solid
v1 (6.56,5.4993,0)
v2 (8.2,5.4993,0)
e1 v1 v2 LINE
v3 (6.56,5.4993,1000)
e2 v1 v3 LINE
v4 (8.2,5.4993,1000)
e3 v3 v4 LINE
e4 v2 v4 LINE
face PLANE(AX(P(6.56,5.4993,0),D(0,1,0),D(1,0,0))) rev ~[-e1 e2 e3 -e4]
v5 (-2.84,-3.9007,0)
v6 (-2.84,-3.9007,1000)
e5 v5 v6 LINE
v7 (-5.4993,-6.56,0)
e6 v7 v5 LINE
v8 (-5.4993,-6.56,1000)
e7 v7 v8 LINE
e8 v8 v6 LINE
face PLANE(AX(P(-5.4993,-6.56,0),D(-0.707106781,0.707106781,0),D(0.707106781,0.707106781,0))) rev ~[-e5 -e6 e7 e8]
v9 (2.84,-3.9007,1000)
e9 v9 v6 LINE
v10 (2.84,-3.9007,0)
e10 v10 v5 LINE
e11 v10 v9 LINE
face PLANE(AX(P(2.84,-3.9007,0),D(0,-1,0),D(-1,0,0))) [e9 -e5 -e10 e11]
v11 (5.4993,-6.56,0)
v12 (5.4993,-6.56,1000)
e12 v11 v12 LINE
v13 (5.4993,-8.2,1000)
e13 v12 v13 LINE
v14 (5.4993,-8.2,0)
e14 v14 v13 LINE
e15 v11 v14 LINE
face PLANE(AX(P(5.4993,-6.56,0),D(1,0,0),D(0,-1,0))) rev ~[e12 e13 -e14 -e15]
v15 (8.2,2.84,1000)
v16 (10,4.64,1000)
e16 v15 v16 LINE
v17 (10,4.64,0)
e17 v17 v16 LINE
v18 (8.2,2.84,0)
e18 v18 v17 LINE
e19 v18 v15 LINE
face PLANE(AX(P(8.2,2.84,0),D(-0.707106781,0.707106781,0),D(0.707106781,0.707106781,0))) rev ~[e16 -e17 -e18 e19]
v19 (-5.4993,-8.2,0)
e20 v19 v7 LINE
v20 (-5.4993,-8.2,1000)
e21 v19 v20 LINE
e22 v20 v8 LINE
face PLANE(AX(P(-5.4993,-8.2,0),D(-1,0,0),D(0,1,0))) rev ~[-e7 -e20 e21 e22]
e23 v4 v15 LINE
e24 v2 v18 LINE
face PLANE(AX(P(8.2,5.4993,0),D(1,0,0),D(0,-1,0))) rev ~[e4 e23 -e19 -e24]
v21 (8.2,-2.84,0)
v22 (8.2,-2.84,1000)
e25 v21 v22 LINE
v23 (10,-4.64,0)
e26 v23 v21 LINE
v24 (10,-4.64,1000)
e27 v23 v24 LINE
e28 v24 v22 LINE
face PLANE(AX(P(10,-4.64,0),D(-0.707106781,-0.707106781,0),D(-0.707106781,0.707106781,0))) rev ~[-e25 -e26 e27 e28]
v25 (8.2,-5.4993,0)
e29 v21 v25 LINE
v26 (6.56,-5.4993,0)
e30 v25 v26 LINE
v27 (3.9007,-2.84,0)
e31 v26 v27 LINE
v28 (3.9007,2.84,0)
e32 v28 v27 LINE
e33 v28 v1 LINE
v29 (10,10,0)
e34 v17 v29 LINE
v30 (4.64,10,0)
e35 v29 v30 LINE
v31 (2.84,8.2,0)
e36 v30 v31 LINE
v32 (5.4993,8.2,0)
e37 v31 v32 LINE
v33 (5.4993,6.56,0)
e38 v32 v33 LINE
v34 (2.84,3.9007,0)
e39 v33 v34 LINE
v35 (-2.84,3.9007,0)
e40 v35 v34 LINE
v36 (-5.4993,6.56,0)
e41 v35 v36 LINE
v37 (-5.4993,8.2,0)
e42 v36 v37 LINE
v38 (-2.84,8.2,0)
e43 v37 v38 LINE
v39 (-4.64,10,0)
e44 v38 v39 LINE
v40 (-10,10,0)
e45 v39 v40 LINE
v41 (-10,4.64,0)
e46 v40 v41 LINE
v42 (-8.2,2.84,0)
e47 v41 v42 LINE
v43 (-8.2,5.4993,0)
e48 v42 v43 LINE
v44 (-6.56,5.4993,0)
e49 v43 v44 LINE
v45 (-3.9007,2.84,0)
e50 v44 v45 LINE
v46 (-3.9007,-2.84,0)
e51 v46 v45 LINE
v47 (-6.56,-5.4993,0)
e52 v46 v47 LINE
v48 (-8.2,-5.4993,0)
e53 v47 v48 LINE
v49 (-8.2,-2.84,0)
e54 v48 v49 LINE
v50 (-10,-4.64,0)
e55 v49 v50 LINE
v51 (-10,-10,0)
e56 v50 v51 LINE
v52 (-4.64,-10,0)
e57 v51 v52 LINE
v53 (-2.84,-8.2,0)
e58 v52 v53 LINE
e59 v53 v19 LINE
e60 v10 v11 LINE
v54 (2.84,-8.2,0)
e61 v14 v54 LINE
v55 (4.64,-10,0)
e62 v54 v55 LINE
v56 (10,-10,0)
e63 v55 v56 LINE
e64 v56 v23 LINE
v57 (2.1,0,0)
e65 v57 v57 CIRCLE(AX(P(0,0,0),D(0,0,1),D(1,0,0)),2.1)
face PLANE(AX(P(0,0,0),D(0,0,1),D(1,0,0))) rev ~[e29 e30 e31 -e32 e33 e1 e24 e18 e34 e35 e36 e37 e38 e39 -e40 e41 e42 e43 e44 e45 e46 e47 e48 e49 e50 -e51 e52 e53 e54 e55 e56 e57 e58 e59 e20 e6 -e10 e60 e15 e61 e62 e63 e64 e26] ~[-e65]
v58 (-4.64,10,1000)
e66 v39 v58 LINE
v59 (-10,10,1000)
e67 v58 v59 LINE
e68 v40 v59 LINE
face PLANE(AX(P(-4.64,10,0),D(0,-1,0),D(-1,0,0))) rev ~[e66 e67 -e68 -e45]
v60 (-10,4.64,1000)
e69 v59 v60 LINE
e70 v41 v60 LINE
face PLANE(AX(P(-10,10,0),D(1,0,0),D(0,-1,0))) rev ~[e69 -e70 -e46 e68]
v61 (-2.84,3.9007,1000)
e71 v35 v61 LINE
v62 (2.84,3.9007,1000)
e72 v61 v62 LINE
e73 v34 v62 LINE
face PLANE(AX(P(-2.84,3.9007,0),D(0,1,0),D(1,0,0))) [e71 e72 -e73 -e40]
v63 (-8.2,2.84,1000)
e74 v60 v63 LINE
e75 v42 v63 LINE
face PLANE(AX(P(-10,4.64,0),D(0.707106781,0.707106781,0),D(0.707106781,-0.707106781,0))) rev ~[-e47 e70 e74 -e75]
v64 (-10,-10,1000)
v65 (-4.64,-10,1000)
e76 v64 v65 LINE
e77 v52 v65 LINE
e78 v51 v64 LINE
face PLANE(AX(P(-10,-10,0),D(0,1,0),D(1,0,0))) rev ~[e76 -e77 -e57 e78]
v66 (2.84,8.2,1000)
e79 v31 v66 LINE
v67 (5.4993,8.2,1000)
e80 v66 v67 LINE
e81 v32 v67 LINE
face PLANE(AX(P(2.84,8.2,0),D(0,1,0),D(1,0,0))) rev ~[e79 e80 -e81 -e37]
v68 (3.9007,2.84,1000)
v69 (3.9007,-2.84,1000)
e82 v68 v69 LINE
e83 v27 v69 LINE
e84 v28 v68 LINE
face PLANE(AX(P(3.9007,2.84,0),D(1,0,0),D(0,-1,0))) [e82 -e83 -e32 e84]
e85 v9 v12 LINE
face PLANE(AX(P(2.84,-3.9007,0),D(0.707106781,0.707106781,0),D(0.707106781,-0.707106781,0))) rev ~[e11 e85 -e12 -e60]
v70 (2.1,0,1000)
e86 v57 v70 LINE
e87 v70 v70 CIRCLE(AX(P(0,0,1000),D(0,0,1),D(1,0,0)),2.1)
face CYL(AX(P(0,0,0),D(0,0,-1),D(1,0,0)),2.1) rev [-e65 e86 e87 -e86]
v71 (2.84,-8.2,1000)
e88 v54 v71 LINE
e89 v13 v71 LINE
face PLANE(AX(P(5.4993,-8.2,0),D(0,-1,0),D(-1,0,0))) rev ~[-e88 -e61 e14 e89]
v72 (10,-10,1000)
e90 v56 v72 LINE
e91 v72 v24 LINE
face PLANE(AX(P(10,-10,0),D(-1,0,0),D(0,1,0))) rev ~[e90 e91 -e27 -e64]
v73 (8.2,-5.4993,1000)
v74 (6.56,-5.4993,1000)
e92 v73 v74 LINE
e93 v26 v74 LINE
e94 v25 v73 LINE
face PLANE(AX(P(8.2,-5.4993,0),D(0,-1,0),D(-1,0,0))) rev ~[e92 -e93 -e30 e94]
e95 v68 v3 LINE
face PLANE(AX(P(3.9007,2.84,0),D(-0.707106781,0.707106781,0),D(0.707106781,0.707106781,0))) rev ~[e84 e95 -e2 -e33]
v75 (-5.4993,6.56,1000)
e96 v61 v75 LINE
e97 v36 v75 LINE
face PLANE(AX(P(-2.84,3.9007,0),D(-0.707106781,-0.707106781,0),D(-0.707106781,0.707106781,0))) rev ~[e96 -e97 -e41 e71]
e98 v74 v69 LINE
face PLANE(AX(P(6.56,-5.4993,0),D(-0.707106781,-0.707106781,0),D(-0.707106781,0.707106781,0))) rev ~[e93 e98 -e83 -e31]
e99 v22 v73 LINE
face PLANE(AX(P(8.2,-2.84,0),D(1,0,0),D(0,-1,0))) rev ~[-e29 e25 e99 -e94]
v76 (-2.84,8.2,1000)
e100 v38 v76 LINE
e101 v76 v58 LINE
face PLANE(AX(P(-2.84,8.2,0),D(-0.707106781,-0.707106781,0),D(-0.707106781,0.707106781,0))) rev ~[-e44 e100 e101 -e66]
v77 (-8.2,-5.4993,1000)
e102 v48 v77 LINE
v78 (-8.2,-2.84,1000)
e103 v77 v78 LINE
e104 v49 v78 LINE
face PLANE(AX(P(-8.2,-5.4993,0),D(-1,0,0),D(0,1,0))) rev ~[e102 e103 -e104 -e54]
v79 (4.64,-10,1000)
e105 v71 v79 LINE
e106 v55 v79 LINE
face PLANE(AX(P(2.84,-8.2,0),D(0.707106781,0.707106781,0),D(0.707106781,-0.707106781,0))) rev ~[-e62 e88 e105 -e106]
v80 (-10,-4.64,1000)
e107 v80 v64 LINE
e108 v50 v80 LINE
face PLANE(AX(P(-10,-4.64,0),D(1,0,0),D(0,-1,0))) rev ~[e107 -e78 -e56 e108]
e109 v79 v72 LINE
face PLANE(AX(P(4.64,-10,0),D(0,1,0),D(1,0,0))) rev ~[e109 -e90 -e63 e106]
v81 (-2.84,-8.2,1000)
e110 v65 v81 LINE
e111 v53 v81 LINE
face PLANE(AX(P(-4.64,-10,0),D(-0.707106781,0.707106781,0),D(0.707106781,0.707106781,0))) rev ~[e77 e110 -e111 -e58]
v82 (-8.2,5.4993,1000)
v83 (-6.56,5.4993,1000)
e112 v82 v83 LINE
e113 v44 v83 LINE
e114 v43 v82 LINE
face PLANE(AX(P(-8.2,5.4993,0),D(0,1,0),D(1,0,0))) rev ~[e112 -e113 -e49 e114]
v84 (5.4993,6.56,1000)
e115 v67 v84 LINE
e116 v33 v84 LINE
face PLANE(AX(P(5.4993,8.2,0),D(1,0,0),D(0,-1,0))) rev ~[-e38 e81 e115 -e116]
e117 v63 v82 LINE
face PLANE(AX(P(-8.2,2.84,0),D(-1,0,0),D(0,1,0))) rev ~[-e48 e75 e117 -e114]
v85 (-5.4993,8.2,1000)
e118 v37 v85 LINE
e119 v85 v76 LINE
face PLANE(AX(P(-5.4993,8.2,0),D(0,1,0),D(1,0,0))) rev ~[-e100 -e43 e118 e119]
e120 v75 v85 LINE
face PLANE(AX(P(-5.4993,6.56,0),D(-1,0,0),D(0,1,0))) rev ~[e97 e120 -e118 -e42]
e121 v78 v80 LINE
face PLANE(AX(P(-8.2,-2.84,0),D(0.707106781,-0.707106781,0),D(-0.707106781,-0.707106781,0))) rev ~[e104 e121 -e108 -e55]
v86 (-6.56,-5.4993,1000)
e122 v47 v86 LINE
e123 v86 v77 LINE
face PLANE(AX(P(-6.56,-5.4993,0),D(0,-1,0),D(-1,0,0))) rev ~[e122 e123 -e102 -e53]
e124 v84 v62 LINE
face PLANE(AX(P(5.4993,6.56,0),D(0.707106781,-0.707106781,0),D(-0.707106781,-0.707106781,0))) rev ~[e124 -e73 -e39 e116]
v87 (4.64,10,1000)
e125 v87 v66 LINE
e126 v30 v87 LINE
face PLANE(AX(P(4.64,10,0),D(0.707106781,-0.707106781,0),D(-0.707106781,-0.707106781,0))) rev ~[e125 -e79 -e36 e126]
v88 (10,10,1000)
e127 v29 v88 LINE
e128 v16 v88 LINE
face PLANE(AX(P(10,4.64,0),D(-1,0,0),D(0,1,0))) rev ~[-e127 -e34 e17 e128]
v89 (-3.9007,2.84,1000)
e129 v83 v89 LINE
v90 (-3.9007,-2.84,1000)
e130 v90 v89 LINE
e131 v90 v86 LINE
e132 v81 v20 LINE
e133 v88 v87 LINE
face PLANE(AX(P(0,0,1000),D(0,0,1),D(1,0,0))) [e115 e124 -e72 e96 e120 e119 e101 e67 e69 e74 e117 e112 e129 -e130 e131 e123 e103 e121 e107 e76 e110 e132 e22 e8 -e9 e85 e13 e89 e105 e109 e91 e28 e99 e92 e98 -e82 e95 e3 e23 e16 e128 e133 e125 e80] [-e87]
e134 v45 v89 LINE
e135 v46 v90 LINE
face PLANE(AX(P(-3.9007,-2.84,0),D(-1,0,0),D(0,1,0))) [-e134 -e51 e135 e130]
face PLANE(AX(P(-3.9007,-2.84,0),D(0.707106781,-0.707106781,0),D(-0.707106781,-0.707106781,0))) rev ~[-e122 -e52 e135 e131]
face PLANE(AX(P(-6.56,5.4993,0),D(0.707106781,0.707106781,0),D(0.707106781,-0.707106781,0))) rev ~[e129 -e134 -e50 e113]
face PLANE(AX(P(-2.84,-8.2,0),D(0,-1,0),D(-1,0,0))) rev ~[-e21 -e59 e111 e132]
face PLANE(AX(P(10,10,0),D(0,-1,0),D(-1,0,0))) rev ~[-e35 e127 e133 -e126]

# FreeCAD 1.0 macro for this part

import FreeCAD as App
import Part
import Sketcher

V = App.Vector


def add_polygon(sketch, points):
    """Adds a closed chain of lines whose ends are joined by coincident constraints."""
    first, n = sketch.GeometryCount, len(points)
    for a, b in zip(points, points[1:] + points[:1]):
        sketch.addGeometry(Part.LineSegment(App.Vector(*a, 0), App.Vector(*b, 0)), False)
    for i in range(n):
        sketch.addConstraint(Sketcher.Constraint("Coincident", first + i, 2, first + (i + 1) % n, 1))

doc = App.newDocument("Part")
body = doc.addObject("PartDesign::Body", "Body")

sketch1 = body.newObject("Sketcher::SketchObject", "Sketch")
sketch1.AttachmentSupport = (doc.getObject("XY_Plane"), [""])
sketch1.MapMode = "FlatFace"
add_polygon(sketch1, [(-6.6, 5.5), (-3.9, 2.8), (-3.9, -2.8), (-6.6, -5.5), (-8.2, -5.5), (-8.2, -2.8), (-10, -4.6), (-10, -10), (-4.6, -10), (-2.8, -8.2), (-5.5, -8.2), (-5.5, -6.6), (-2.8, -3.9), (2.8, -3.9), (5.5, -6.6), (5.5, -8.2), (2.8, -8.2), (4.6, -10), (10, -10), (10, -4.6), (8.2, -2.8), (8.2, -5.5), (6.6, -5.5), (3.9, -2.8), (3.9, 2.8), (6.6, 5.5), (8.2, 5.5), (8.2, 2.8), (10, 4.6), (10, 10), (4.6, 10), (2.8, 8.2), (5.5, 8.2), (5.5, 6.6), (2.8, 3.9), (-2.8, 3.9), (-5.5, 6.6), (-5.5, 8.2), (-2.8, 8.2), (-4.6, 10), (-10, 10), (-10, 4.6), (-8.2, 2.8), (-8.2, 5.5)])
sketch1.addGeometry(Part.Circle(V(0, 0, 0), V(0, 0, 1), 2.1), False)
sketch1.addConstraint(Sketcher.Constraint("Vertical", 1))
sketch1.addConstraint(Sketcher.Constraint("Horizontal", 3))
sketch1.addConstraint(Sketcher.Constraint("Vertical", 4))
sketch1.addConstraint(Sketcher.Constraint("Vertical", 6))
sketch1.addConstraint(Sketcher.Constraint("Horizontal", 7))
sketch1.addConstraint(Sketcher.Constraint("Horizontal", 9))
sketch1.addConstraint(Sketcher.Constraint("Vertical", 10))
sketch1.addConstraint(Sketcher.Constraint("Horizontal", 12))
sketch1.addConstraint(Sketcher.Constraint("Vertical", 14))
sketch1.addConstraint(Sketcher.Constraint("Horizontal", 15))
sketch1.addConstraint(Sketcher.Constraint("Horizontal", 17))
sketch1.addConstraint(Sketcher.Constraint("Vertical", 18))
sketch1.addConstraint(Sketcher.Constraint("Vertical", 20))
sketch1.addConstraint(Sketcher.Constraint("Horizontal", 21))
sketch1.addConstraint(Sketcher.Constraint("Vertical", 23))
sketch1.addConstraint(Sketcher.Constraint("Horizontal", 25))
sketch1.addConstraint(Sketcher.Constraint("Vertical", 26))
sketch1.addConstraint(Sketcher.Constraint("Vertical", 28))
sketch1.addConstraint(Sketcher.Constraint("Horizontal", 29))
sketch1.addConstraint(Sketcher.Constraint("Horizontal", 31))
sketch1.addConstraint(Sketcher.Constraint("Vertical", 32))
sketch1.addConstraint(Sketcher.Constraint("Horizontal", 34))
sketch1.addConstraint(Sketcher.Constraint("Vertical", 36))
sketch1.addConstraint(Sketcher.Constraint("Horizontal", 37))
sketch1.addConstraint(Sketcher.Constraint("Horizontal", 39))
sketch1.addConstraint(Sketcher.Constraint("Vertical", 40))
sketch1.addConstraint(Sketcher.Constraint("Vertical", 42))
sketch1.addConstraint(Sketcher.Constraint("Horizontal", 43))
sketch1.addConstraint(Sketcher.Constraint("Coincident", 44, 3, -1, 1))
sketch1.addConstraint(Sketcher.Constraint("Symmetric", 0, 2, 22, 2, -1, 1))
sketch1.addConstraint(Sketcher.Constraint("Symmetric", 2, 2, 24, 2, -1, 1))
sketch1.addConstraint(Sketcher.Constraint("Symmetric", 4, 2, 26, 2, -1, 1))
sketch1.addConstraint(Sketcher.Constraint("Symmetric", 5, 2, 27, 2, -1, 1))
sketch1.addConstraint(Sketcher.Constraint("Symmetric", 7, 2, 29, 2, -1, 1))
sketch1.addConstraint(Sketcher.Constraint("Symmetric", 8, 2, 30, 2, -1, 1))
sketch1.addConstraint(Sketcher.Constraint("Symmetric", 10, 2, 32, 2, -1, 1))
sketch1.addConstraint(Sketcher.Constraint("Symmetric", 11, 2, 33, 2, -1, 1))
sketch1.addConstraint(Sketcher.Constraint("Symmetric", 13, 2, 35, 2, -1, 1))
sketch1.addConstraint(Sketcher.Constraint("Symmetric", 15, 2, 37, 2, -1, 1))
sketch1.addConstraint(Sketcher.Constraint("Symmetric", 16, 2, 38, 2, -1, 1))
sketch1.addConstraint(Sketcher.Constraint("Symmetric", 18, 2, 40, 2, -1, 1))
sketch1.addConstraint(Sketcher.Constraint("Symmetric", 19, 2, 41, 2, -1, 1))
sketch1.addConstraint(Sketcher.Constraint("Symmetric", 21, 2, 43, 2, -1, 1))
sketch1.addConstraint(Sketcher.Constraint("Symmetric", 10, 2, 13, 2, -2))
sketch1.addConstraint(Sketcher.Constraint("Symmetric", 8, 2, 15, 2, -2))
sketch1.addConstraint(Sketcher.Constraint("Symmetric", 7, 2, 16, 2, -2))
sketch1.addConstraint(Sketcher.Constraint("Symmetric", 5, 2, 18, 2, -2))
sketch1.addConstraint(Sketcher.Constraint("Symmetric", 4, 2, 19, 2, -2))
sketch1.addConstraint(Sketcher.Constraint("Symmetric", 2, 2, 21, 2, -2))
sketch1.addConstraint(Sketcher.Constraint("Perpendicular", 0, 2))
sketch1.addConstraint(Sketcher.Constraint("Parallel", 2, 5))
sketch1.addConstraint(Sketcher.Constraint("Parallel", 5, 8))
sketch1.addConstraint(Sketcher.Constraint("Parallel", 8, 11))
sketch1.addConstraint(Sketcher.Constraint("Perpendicular", 11, 13))
sketch1.addConstraint(Sketcher.Constraint("Parallel", 13, 16))
sketch1.addConstraint(Sketcher.Constraint("Perpendicular", 22, 24))
sketch1.addConstraint(Sketcher.Constraint("Perpendicular", 33, 35))
sketch1.addConstraint(Sketcher.Constraint("Horizontal", 1, 2, 4, 2))
sketch1.addConstraint(Sketcher.Constraint("Vertical", 8, 2, 11, 2))
sketch1.addConstraint(Sketcher.Constraint("Equal", 34, 1))
sketch1.addConstraint(Sketcher.Constraint("Equal", 37, 4))
sketch1.addConstraint(Sketcher.Constraint("Equal", 39, 6))
sketch1.addConstraint(Sketcher.Constraint("Equal", 43, 10))
sketch1.addConstraint(Sketcher.Constraint("Equal", 5, 8))
sketch1.addConstraint(Sketcher.Constraint("Diameter", 44, 4.2))
sketch1.addConstraint(Sketcher.Constraint("DistanceX", 5, 2, -1, 1, 10.0))
sketch1.addConstraint(Sketcher.Constraint("DistanceX", 3, 2, 3, 1, 1.64))
sketch1.addConstraint(Sketcher.Constraint("DistanceX", 5, 2, 3, 2, 1.8))
sketch1.addConstraint(Sketcher.Constraint("DistanceY", -1, 1, 0, 2, 2.84))
sketch1.addConstraint(Sketcher.Constraint("DistanceX", 9, 2, 9, 1, 2.6593))
pad1 = body.newObject("PartDesign::Pad", "Pad")
pad1.Profile = sketch1
pad1.Length = 1000

doc.recompute()
